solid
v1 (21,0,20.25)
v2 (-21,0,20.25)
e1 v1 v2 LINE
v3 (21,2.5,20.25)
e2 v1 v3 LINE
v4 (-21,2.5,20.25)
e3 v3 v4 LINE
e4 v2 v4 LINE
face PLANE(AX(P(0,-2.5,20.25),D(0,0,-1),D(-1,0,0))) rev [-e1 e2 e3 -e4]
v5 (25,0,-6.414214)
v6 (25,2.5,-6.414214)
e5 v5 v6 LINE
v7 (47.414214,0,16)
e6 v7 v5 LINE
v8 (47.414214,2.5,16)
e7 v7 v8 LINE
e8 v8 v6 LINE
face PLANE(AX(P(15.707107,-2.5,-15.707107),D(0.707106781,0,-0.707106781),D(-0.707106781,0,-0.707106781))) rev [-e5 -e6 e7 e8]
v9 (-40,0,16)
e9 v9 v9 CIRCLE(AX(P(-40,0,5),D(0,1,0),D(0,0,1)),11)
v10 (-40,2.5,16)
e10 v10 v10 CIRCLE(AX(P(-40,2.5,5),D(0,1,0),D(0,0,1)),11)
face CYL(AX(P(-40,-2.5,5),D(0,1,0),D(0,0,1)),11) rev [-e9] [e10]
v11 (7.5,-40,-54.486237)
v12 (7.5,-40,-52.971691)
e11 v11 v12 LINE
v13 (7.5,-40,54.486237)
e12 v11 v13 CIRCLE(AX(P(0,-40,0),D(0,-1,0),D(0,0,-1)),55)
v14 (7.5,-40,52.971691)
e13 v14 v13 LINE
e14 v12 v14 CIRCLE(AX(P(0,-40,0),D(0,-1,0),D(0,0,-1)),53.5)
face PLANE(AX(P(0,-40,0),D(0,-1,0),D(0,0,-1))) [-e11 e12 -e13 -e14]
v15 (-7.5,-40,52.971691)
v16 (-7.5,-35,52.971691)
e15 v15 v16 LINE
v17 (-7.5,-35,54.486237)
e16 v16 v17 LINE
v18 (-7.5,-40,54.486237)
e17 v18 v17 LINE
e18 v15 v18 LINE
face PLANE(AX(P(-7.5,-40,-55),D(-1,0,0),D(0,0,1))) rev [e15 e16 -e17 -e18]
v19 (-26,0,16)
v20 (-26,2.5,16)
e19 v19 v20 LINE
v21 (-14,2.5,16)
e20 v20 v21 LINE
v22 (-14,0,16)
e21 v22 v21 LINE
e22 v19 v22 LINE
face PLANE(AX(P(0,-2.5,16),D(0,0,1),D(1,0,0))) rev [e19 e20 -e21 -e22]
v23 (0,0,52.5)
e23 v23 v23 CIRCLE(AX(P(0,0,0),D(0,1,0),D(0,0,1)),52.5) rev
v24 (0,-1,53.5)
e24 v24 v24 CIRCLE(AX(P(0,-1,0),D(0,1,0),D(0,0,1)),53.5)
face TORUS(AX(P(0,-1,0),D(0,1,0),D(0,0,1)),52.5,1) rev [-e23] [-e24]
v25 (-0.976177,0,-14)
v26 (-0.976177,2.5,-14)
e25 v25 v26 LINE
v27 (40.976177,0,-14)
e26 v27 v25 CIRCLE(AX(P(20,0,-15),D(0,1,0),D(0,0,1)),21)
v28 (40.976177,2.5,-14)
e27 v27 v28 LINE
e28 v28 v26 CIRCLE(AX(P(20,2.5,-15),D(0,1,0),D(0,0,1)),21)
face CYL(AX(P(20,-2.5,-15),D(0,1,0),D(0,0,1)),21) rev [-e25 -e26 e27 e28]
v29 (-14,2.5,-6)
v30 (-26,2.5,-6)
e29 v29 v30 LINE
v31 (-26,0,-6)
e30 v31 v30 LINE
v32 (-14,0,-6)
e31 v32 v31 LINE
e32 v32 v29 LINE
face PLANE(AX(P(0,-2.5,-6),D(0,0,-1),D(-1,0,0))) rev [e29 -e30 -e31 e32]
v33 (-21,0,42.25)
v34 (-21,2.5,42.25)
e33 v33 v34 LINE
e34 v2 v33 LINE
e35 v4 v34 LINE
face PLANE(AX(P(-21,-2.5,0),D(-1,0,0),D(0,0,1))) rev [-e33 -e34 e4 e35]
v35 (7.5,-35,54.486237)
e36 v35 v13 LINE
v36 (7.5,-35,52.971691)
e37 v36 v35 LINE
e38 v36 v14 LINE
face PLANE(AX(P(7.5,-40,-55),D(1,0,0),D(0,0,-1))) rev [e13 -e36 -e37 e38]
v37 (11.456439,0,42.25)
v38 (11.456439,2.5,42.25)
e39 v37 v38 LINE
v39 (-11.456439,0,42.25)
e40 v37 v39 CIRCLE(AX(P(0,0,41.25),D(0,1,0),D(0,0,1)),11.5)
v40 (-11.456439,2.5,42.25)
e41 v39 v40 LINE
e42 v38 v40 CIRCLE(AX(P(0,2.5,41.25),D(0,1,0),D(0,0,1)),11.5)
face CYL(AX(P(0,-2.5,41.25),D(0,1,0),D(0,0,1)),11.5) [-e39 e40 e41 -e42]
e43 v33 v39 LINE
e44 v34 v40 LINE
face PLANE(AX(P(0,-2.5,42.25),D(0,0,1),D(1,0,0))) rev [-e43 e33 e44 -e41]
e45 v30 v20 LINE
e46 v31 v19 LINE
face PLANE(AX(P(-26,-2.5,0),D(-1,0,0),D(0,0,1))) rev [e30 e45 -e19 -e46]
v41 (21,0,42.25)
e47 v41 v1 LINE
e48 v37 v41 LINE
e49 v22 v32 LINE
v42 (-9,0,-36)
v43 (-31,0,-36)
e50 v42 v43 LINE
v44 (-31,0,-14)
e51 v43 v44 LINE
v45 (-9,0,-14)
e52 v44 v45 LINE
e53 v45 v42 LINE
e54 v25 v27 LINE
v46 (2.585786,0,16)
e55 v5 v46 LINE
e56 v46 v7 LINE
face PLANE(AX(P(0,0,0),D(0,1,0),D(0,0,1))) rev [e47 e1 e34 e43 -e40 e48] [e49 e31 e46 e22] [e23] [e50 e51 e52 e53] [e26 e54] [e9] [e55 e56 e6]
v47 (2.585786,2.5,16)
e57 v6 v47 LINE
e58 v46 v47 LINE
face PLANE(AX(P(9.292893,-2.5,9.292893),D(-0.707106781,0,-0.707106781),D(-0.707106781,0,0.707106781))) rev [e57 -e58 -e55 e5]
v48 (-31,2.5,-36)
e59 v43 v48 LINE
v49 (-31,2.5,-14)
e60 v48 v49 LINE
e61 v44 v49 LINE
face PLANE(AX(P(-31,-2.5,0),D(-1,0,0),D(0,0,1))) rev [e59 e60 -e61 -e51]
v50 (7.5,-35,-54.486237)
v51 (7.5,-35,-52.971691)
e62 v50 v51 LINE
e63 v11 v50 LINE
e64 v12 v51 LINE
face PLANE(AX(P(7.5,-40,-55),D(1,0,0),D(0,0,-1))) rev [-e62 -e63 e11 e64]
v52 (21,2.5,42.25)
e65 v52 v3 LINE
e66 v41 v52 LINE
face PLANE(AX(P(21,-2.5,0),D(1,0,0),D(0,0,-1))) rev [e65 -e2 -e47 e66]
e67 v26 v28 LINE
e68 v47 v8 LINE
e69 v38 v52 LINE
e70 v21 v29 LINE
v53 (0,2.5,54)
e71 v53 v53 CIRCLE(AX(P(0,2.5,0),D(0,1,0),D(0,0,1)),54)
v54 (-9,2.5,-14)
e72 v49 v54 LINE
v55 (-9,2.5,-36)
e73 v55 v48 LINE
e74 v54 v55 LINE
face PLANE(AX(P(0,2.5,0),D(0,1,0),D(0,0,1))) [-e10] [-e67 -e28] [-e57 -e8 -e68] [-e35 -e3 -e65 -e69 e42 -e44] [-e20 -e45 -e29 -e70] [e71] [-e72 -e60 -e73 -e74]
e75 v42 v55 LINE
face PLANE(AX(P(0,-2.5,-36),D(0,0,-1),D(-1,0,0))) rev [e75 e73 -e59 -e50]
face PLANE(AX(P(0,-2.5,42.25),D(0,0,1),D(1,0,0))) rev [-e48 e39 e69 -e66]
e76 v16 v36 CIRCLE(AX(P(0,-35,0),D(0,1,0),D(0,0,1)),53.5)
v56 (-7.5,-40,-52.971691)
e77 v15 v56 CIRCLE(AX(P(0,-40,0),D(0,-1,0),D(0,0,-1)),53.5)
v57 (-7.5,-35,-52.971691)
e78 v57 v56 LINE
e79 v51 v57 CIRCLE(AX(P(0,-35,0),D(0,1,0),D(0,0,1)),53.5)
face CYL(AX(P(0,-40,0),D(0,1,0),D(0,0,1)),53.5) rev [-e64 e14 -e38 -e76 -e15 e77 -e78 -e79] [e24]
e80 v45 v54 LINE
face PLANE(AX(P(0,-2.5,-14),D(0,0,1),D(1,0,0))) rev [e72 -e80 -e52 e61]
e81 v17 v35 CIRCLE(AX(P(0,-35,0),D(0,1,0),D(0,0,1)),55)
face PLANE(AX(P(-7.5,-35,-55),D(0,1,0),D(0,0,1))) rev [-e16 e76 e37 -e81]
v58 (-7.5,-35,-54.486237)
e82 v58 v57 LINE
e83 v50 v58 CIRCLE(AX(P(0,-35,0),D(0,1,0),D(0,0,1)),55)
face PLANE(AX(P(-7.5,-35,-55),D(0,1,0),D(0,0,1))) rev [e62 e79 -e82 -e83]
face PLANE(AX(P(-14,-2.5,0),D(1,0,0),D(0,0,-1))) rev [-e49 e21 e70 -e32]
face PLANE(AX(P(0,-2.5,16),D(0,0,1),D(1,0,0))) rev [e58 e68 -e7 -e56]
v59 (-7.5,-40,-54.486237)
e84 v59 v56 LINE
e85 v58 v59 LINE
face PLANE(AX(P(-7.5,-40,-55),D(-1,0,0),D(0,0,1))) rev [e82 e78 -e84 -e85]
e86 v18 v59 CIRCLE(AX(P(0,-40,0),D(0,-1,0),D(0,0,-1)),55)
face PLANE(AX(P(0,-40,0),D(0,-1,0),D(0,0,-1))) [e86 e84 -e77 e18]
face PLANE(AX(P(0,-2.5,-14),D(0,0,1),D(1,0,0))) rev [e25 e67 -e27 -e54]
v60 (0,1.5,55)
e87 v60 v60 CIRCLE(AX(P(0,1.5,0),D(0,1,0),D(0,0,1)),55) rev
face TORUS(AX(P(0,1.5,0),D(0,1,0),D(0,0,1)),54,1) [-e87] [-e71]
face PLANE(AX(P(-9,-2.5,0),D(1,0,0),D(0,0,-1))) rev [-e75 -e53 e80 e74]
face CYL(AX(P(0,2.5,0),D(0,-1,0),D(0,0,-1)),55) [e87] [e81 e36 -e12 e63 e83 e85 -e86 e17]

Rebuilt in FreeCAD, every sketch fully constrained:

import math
import FreeCAD as App
import Part
import Sketcher
from FreeCAD import Vector


def edges_at(feature, points):
    """Names of the edges that pass closest to the given points."""
    edges = feature.Shape.Edges
    near = lambda p: min(range(len(edges)), key=lambda i: edges[i].distToShape(Part.Vertex(*p))[0])
    return sorted({f"Edge{near(p) + 1}" for p in points})

doc = App.newDocument("Part")
body = doc.addObject("PartDesign::Body", "Body")

sketch1 = doc.addObject("Sketcher::SketchObject", "Sketch")
body.addObject(sketch1)
sketch1.AttachmentSupport = (doc.XZ_Plane, [""])
sketch1.MapMode = "FlatFace"
sketch1.addGeometry(Part.Circle(Vector(0, 0, 0), Vector(0, 0, 1), 55), False)
sketch1.addGeometry(Part.LineSegment(Vector(-10, -15, 0), Vector(-30, -15, 0)), False)
sketch1.addGeometry(Part.LineSegment(Vector(-30, -15, 0), Vector(-30, -35, 0)), False)
sketch1.addGeometry(Part.LineSegment(Vector(-30, -35, 0), Vector(-10, -35, 0)), False)
sketch1.addGeometry(Part.LineSegment(Vector(-10, -35, 0), Vector(-10, -15, 0)), False)
sketch1.addGeometry(Part.Circle(Vector(-40, 5, 0), Vector(0, 0, 1), 10), False)
sketch1.addGeometry(Part.LineSegment(Vector(-15, 15, 0), Vector(-25, 15, 0)), False)
sketch1.addGeometry(Part.LineSegment(Vector(-25, 15, 0), Vector(-25, -5, 0)), False)
sketch1.addGeometry(Part.LineSegment(Vector(-25, -5, 0), Vector(-15, -5, 0)), False)
sketch1.addGeometry(Part.LineSegment(Vector(-15, -5, 0), Vector(-15, 15, 0)), False)
sketch1.addGeometry(Part.LineSegment(Vector(40, -15, 0), Vector(0, -15, 0)), False)
sketch1.addGeometry(Part.ArcOfCircle(Part.Circle(Vector(20, -15, 0), Vector(0, 0, 1), 20), math.radians(180), math.radians(360)), False)
sketch1.addGeometry(Part.LineSegment(Vector(-12, 41, 0), Vector(-20, 41, 0)), False)
sketch1.addGeometry(Part.LineSegment(Vector(-20, 41, 0), Vector(-20, 21, 0)), False)
sketch1.addGeometry(Part.LineSegment(Vector(-20, 21, 0), Vector(20, 21, 0)), False)
sketch1.addGeometry(Part.LineSegment(Vector(20, 21, 0), Vector(20, 41, 0)), False)
sketch1.addGeometry(Part.LineSegment(Vector(20, 41, 0), Vector(12, 41, 0)), False)
sketch1.addGeometry(Part.ArcOfCircle(Part.Circle(Vector(0, 41, 0), Vector(0, 0, 1), 12), math.radians(180), math.radians(360)), False)
sketch1.addGeometry(Part.LineSegment(Vector(45, 15, 0), Vector(5, 15, 0)), False)
sketch1.addGeometry(Part.LineSegment(Vector(5, 15, 0), Vector(25, -5, 0)), False)
sketch1.addGeometry(Part.LineSegment(Vector(25, -5, 0), Vector(45, 15, 0)), False)
sketch1.addConstraint(Sketcher.Constraint("Coincident", 1, 2, 2, 1))
sketch1.addConstraint(Sketcher.Constraint("Coincident", 2, 2, 3, 1))
sketch1.addConstraint(Sketcher.Constraint("Coincident", 3, 2, 4, 1))
sketch1.addConstraint(Sketcher.Constraint("Coincident", 4, 2, 1, 1))
sketch1.addConstraint(Sketcher.Constraint("Coincident", 6, 2, 7, 1))
sketch1.addConstraint(Sketcher.Constraint("Coincident", 7, 2, 8, 1))
sketch1.addConstraint(Sketcher.Constraint("Coincident", 8, 2, 9, 1))
sketch1.addConstraint(Sketcher.Constraint("Coincident", 9, 2, 6, 1))
sketch1.addConstraint(Sketcher.Constraint("Coincident", 10, 1, 11, 2))
sketch1.addConstraint(Sketcher.Constraint("Coincident", 11, 1, 10, 2))
sketch1.addConstraint(Sketcher.Constraint("Coincident", 12, 2, 13, 1))
sketch1.addConstraint(Sketcher.Constraint("Coincident", 13, 2, 14, 1))
sketch1.addConstraint(Sketcher.Constraint("Coincident", 14, 2, 15, 1))
sketch1.addConstraint(Sketcher.Constraint("Coincident", 15, 2, 16, 1))
sketch1.addConstraint(Sketcher.Constraint("Coincident", 16, 2, 17, 2))
sketch1.addConstraint(Sketcher.Constraint("Coincident", 17, 1, 12, 1))
sketch1.addConstraint(Sketcher.Constraint("Coincident", 18, 2, 19, 1))
sketch1.addConstraint(Sketcher.Constraint("Coincident", 19, 2, 20, 1))
sketch1.addConstraint(Sketcher.Constraint("Coincident", 20, 2, 18, 1))
sketch1.addConstraint(Sketcher.Constraint("Horizontal", 1))
sketch1.addConstraint(Sketcher.Constraint("Vertical", 2))
sketch1.addConstraint(Sketcher.Constraint("Horizontal", 3))
sketch1.addConstraint(Sketcher.Constraint("Vertical", 4))
sketch1.addConstraint(Sketcher.Constraint("Horizontal", 6))
sketch1.addConstraint(Sketcher.Constraint("Vertical", 7))
sketch1.addConstraint(Sketcher.Constraint("Horizontal", 8))
sketch1.addConstraint(Sketcher.Constraint("Vertical", 9))
sketch1.addConstraint(Sketcher.Constraint("Horizontal", 10))
sketch1.addConstraint(Sketcher.Constraint("Horizontal", 12))
sketch1.addConstraint(Sketcher.Constraint("Vertical", 13))
sketch1.addConstraint(Sketcher.Constraint("Horizontal", 14))
sketch1.addConstraint(Sketcher.Constraint("Vertical", 15))
sketch1.addConstraint(Sketcher.Constraint("Horizontal", 16))
sketch1.addConstraint(Sketcher.Constraint("Horizontal", 18))
sketch1.addConstraint(Sketcher.Constraint("Coincident", 0, 3, -1, 1))
sketch1.addConstraint(Sketcher.Constraint("Symmetric", 12, 2, 15, 2, -2))
sketch1.addConstraint(Sketcher.Constraint("Symmetric", 7, 2, 19, 2, -2))
sketch1.addConstraint(Sketcher.Constraint("PointOnObject", 17, 3, -2))
sketch1.addConstraint(Sketcher.Constraint("PointOnObject", 11, 1, -2))
sketch1.addConstraint(Sketcher.Constraint("Perpendicular", 19, 20))
sketch1.addConstraint(Sketcher.Constraint("Horizontal", 11, 3, 1, 2))
sketch1.addConstraint(Sketcher.Constraint("Horizontal", 4, 2, 10, 1))
sketch1.addConstraint(Sketcher.Constraint("Horizontal", 17, 3, 12, 2))
sketch1.addConstraint(Sketcher.Constraint("Horizontal", 9, 2, 18, 2))
sketch1.addConstraint(Sketcher.Constraint("Vertical", 11, 3, 14, 2))
sketch1.addConstraint(Sketcher.Constraint("Equal", 14, 18))
sketch1.addConstraint(Sketcher.Constraint("Equal", 3, 2))
sketch1.addConstraint(Sketcher.Constraint("Equal", 4, 7))
sketch1.addConstraint(Sketcher.Constraint("Equal", 9, 13))
sketch1.addConstraint(Sketcher.Constraint("Equal", 19, 20))
sketch1.addConstraint(Sketcher.Constraint("Diameter", 0, 110.0))
sketch1.addConstraint(Sketcher.Constraint("Diameter", 5, 20.0))
sketch1.addConstraint(Sketcher.Constraint("Radius", 11, 20.0))
sketch1.addConstraint(Sketcher.Constraint("Radius", 17, 12.5))
sketch1.addConstraint(Sketcher.Constraint("DistanceX", 6, 2, 6, 1, 10.0))
sketch1.addConstraint(Sketcher.Constraint("DistanceX", 5, 3, -1, 1, 40.0))
sketch1.addConstraint(Sketcher.Constraint("DistanceY", -1, 1, 5, 3, 5.0))
sketch1.addConstraint(Sketcher.Constraint("DistanceY", 11, 3, -1, 1, 15.0))
sketch1.addConstraint(Sketcher.Constraint("DistanceX", 1, 2, -1, 1, 30.0))
sketch1.addConstraint(Sketcher.Constraint("DistanceX", 6, 2, -1, 1, 25.0))
sketch1.addConstraint(Sketcher.Constraint("DistanceY", -1, 1, 6, 2, 15.0))
sketch1.addConstraint(Sketcher.Constraint("DistanceY", -1, 1, 17, 3, 41.25))
pad1 = doc.addObject("PartDesign::Pad", "Pad")
body.addObject(pad1)
pad1.Profile = sketch1
pad1.Length = 2.5
pad1.Reversed = True

sketch2 = doc.addObject("Sketcher::SketchObject", "Sketch001")
body.addObject(sketch2)
sketch2.AttachmentSupport = (doc.XZ_Plane, [""])
sketch2.MapMode = "FlatFace"
sketch2.AttachmentOffset = App.Placement(Vector(0, 0, 40), App.Rotation())
sketch2.addGeometry(Part.Circle(Vector(0, 0, 0), Vector(0, 0, 1), 55), False)
sketch2.addGeometry(Part.Circle(Vector(0, 0, 0), Vector(0, 0, 1), 54), False)
sketch2.addConstraint(Sketcher.Constraint("Coincident", 0, 3, -1, 1))
sketch2.addConstraint(Sketcher.Constraint("Coincident", 1, 3, -1, 1))
sketch2.addConstraint(Sketcher.Constraint("Diameter", 0, 110.0))
sketch2.addConstraint(Sketcher.Constraint("Diameter", 1, 107.0))
pad2 = doc.addObject("PartDesign::Pad", "Pad001")
body.addObject(pad2)
pad2.Profile = sketch2
pad2.Length = 40
pad2.Reversed = True

sketch3 = doc.addObject("Sketcher::SketchObject", "Sketch002")
body.addObject(sketch3)
sketch3.AttachmentSupport = (doc.XZ_Plane, [""])
sketch3.MapMode = "FlatFace"
sketch3.AttachmentOffset = App.Placement(Vector(0, 0, 2.5), App.Rotation())
sketch3.addGeometry(Part.LineSegment(Vector(-31, -36, 0), Vector(-31, -14, 0)), False)
sketch3.addGeometry(Part.LineSegment(Vector(-31, -14, 0), Vector(-9, -14, 0)), False)
sketch3.addGeometry(Part.LineSegment(Vector(-9, -14, 0), Vector(-9, -36, 0)), False)
sketch3.addGeometry(Part.LineSegment(Vector(-9, -36, 0), Vector(-31, -36, 0)), False)
sketch3.addGeometry(Part.LineSegment(Vector(-10, -15, 0), Vector(-30, -15, 0)), False)
sketch3.addGeometry(Part.LineSegment(Vector(-30, -15, 0), Vector(-30, -35, 0)), False)
sketch3.addGeometry(Part.LineSegment(Vector(-30, -35, 0), Vector(-10, -35, 0)), False)
sketch3.addGeometry(Part.LineSegment(Vector(-10, -35, 0), Vector(-10, -15, 0)), False)
sketch3.addGeometry(Part.ArcOfCircle(Part.Circle(Vector(20, -15, 0), Vector(0, 0, 1), 21), math.radians(177), math.radians(363)), False)
sketch3.addGeometry(Part.LineSegment(Vector(-1, -14, 0), Vector(41, -14, 0)), False)
sketch3.addGeometry(Part.ArcOfCircle(Part.Circle(Vector(20, -15, 0), Vector(0, 0, 1), 20), math.radians(180), math.radians(360)), False)
sketch3.addGeometry(Part.LineSegment(Vector(40, -15, 0), Vector(0, -15, 0)), False)
sketch3.addGeometry(Part.LineSegment(Vector(-26, -6, 0), Vector(-26, 16, 0)), False)
sketch3.addGeometry(Part.LineSegment(Vector(-26, 16, 0), Vector(-14, 16, 0)), False)
sketch3.addGeometry(Part.LineSegment(Vector(-14, 16, 0), Vector(-14, -6, 0)), False)
sketch3.addGeometry(Part.LineSegment(Vector(-14, -6, 0), Vector(-26, -6, 0)), False)
sketch3.addGeometry(Part.LineSegment(Vector(-15, 15, 0), Vector(-25, 15, 0)), False)
sketch3.addGeometry(Part.LineSegment(Vector(-25, 15, 0), Vector(-25, -5, 0)), False)
sketch3.addGeometry(Part.LineSegment(Vector(-25, -5, 0), Vector(-15, -5, 0)), False)
sketch3.addGeometry(Part.LineSegment(Vector(-15, -5, 0), Vector(-15, 15, 0)), False)
sketch3.addGeometry(Part.LineSegment(Vector(47, 16, 0), Vector(25, -6, 0)), False)
sketch3.addGeometry(Part.LineSegment(Vector(25, -6, 0), Vector(3, 16, 0)), False)
sketch3.addGeometry(Part.LineSegment(Vector(3, 16, 0), Vector(47, 16, 0)), False)
sketch3.addGeometry(Part.LineSegment(Vector(45, 15, 0), Vector(5, 15, 0)), False)
sketch3.addGeometry(Part.LineSegment(Vector(5, 15, 0), Vector(25, -5, 0)), False)
sketch3.addGeometry(Part.LineSegment(Vector(25, -5, 0), Vector(45, 15, 0)), False)
sketch3.addGeometry(Part.LineSegment(Vector(21, 42, 0), Vector(21, 20, 0)), False)
sketch3.addGeometry(Part.LineSegment(Vector(21, 20, 0), Vector(-21, 20, 0)), False)
sketch3.addGeometry(Part.LineSegment(Vector(-21, 20, 0), Vector(-21, 42, 0)), False)
sketch3.addGeometry(Part.LineSegment(Vector(-21, 42, 0), Vector(-11, 42, 0)), False)
sketch3.addGeometry(Part.ArcOfCircle(Part.Circle(Vector(0, 41, 0), Vector(0, 0, 1), 12), math.radians(175), math.radians(365)), False)
sketch3.addGeometry(Part.LineSegment(Vector(11, 42, 0), Vector(21, 42, 0)), False)
sketch3.addGeometry(Part.LineSegment(Vector(-20, 41, 0), Vector(-20, 21, 0)), False)
sketch3.addGeometry(Part.LineSegment(Vector(-20, 21, 0), Vector(20, 21, 0)), False)
sketch3.addGeometry(Part.LineSegment(Vector(20, 21, 0), Vector(20, 41, 0)), False)
sketch3.addGeometry(Part.LineSegment(Vector(20, 41, 0), Vector(12, 41, 0)), False)
sketch3.addGeometry(Part.ArcOfCircle(Part.Circle(Vector(0, 41, 0), Vector(0, 0, 1), 12), math.radians(180), math.radians(360)), False)
sketch3.addGeometry(Part.LineSegment(Vector(-12, 41, 0), Vector(-20, 41, 0)), False)
sketch3.addGeometry(Part.Circle(Vector(-40, 5, 0), Vector(0, 0, 1), 11), False)
sketch3.addGeometry(Part.Circle(Vector(-40, 5, 0), Vector(0, 0, 1), 10), False)
sketch3.addConstraint(Sketcher.Constraint("Coincident", 0, 2, 1, 1))
sketch3.addConstraint(Sketcher.Constraint("Coincident", 1, 2, 2, 1))
sketch3.addConstraint(Sketcher.Constraint("Coincident", 2, 2, 3, 1))
sketch3.addConstraint(Sketcher.Constraint("Coincident", 3, 2, 0, 1))
sketch3.addConstraint(Sketcher.Constraint("Coincident", 4, 2, 5, 1))
sketch3.addConstraint(Sketcher.Constraint("Coincident", 5, 2, 6, 1))
sketch3.addConstraint(Sketcher.Constraint("Coincident", 6, 2, 7, 1))
sketch3.addConstraint(Sketcher.Constraint("Coincident", 7, 2, 4, 1))
sketch3.addConstraint(Sketcher.Constraint("Coincident", 8, 1, 9, 1))
sketch3.addConstraint(Sketcher.Constraint("Coincident", 9, 2, 8, 2))
sketch3.addConstraint(Sketcher.Constraint("Coincident", 10, 1, 11, 2))
sketch3.addConstraint(Sketcher.Constraint("Coincident", 11, 1, 10, 2))
sketch3.addConstraint(Sketcher.Constraint("Coincident", 12, 2, 13, 1))
sketch3.addConstraint(Sketcher.Constraint("Coincident", 13, 2, 14, 1))
sketch3.addConstraint(Sketcher.Constraint("Coincident", 14, 2, 15, 1))
sketch3.addConstraint(Sketcher.Constraint("Coincident", 15, 2, 12, 1))
sketch3.addConstraint(Sketcher.Constraint("Coincident", 16, 2, 17, 1))
sketch3.addConstraint(Sketcher.Constraint("Coincident", 17, 2, 18, 1))
sketch3.addConstraint(Sketcher.Constraint("Coincident", 18, 2, 19, 1))
sketch3.addConstraint(Sketcher.Constraint("Coincident", 19, 2, 16, 1))
sketch3.addConstraint(Sketcher.Constraint("Coincident", 20, 2, 21, 1))
sketch3.addConstraint(Sketcher.Constraint("Coincident", 21, 2, 22, 1))
sketch3.addConstraint(Sketcher.Constraint("Coincident", 22, 2, 20, 1))
sketch3.addConstraint(Sketcher.Constraint("Coincident", 23, 2, 24, 1))
sketch3.addConstraint(Sketcher.Constraint("Coincident", 24, 2, 25, 1))
sketch3.addConstraint(Sketcher.Constraint("Coincident", 25, 2, 23, 1))
sketch3.addConstraint(Sketcher.Constraint("Coincident", 26, 2, 27, 1))
sketch3.addConstraint(Sketcher.Constraint("Coincident", 27, 2, 28, 1))
sketch3.addConstraint(Sketcher.Constraint("Coincident", 28, 2, 29, 1))
sketch3.addConstraint(Sketcher.Constraint("Coincident", 29, 2, 30, 1))
sketch3.addConstraint(Sketcher.Constraint("Coincident", 30, 2, 31, 1))
sketch3.addConstraint(Sketcher.Constraint("Coincident", 31, 2, 26, 1))
sketch3.addConstraint(Sketcher.Constraint("Coincident", 32, 2, 33, 1))
sketch3.addConstraint(Sketcher.Constraint("Coincident", 33, 2, 34, 1))
sketch3.addConstraint(Sketcher.Constraint("Coincident", 34, 2, 35, 1))
sketch3.addConstraint(Sketcher.Constraint("Coincident", 35, 2, 36, 2))
sketch3.addConstraint(Sketcher.Constraint("Coincident", 36, 1, 37, 1))
sketch3.addConstraint(Sketcher.Constraint("Coincident", 37, 2, 32, 1))
sketch3.addConstraint(Sketcher.Constraint("Vertical", 0))
sketch3.addConstraint(Sketcher.Constraint("Horizontal", 1))
sketch3.addConstraint(Sketcher.Constraint("Vertical", 2))
sketch3.addConstraint(Sketcher.Constraint("Horizontal", 3))
sketch3.addConstraint(Sketcher.Constraint("Horizontal", 4))
sketch3.addConstraint(Sketcher.Constraint("Vertical", 5))
sketch3.addConstraint(Sketcher.Constraint("Horizontal", 6))
sketch3.addConstraint(Sketcher.Constraint("Vertical", 7))
sketch3.addConstraint(Sketcher.Constraint("Horizontal", 9))
sketch3.addConstraint(Sketcher.Constraint("Horizontal", 11))
sketch3.addConstraint(Sketcher.Constraint("Vertical", 12))
sketch3.addConstraint(Sketcher.Constraint("Horizontal", 13))
sketch3.addConstraint(Sketcher.Constraint("Vertical", 14))
sketch3.addConstraint(Sketcher.Constraint("Horizontal", 15))
sketch3.addConstraint(Sketcher.Constraint("Horizontal", 16))
sketch3.addConstraint(Sketcher.Constraint("Vertical", 17))
sketch3.addConstraint(Sketcher.Constraint("Horizontal", 18))
sketch3.addConstraint(Sketcher.Constraint("Vertical", 19))
sketch3.addConstraint(Sketcher.Constraint("Horizontal", 22))
sketch3.addConstraint(Sketcher.Constraint("Horizontal", 23))
sketch3.addConstraint(Sketcher.Constraint("Vertical", 26))
sketch3.addConstraint(Sketcher.Constraint("Horizontal", 27))
sketch3.addConstraint(Sketcher.Constraint("Vertical", 28))
sketch3.addConstraint(Sketcher.Constraint("Horizontal", 29))
sketch3.addConstraint(Sketcher.Constraint("Horizontal", 31))
sketch3.addConstraint(Sketcher.Constraint("Vertical", 32))
sketch3.addConstraint(Sketcher.Constraint("Horizontal", 33))
sketch3.addConstraint(Sketcher.Constraint("Vertical", 34))
sketch3.addConstraint(Sketcher.Constraint("Horizontal", 35))
sketch3.addConstraint(Sketcher.Constraint("Horizontal", 37))
sketch3.addConstraint(Sketcher.Constraint("Coincident", 10, 3, 8, 3))
sketch3.addConstraint(Sketcher.Constraint("Coincident", 36, 3, 30, 3))
sketch3.addConstraint(Sketcher.Constraint("Coincident", 39, 3, 38, 3))
sketch3.addConstraint(Sketcher.Constraint("Symmetric", 17, 2, 24, 2, -2))
sketch3.addConstraint(Sketcher.Constraint("Symmetric", 29, 2, 30, 2, -2))
sketch3.addConstraint(Sketcher.Constraint("Symmetric", 34, 2, 37, 2, -2))
sketch3.addConstraint(Sketcher.Constraint("PointOnObject", 10, 1, -2))
sketch3.addConstraint(Sketcher.Constraint("Perpendicular", 20, 21))
sketch3.addConstraint(Sketcher.Constraint("Parallel", 21, 24))
sketch3.addConstraint(Sketcher.Constraint("Perpendicular", 24, 25))
sketch3.addConstraint(Sketcher.Constraint("Horizontal", 10, 3, 4, 2))
sketch3.addConstraint(Sketcher.Constraint("Horizontal", 1, 2, 8, 1))
sketch3.addConstraint(Sketcher.Constraint("Horizontal", 7, 2, 10, 1))
sketch3.addConstraint(Sketcher.Constraint("Horizontal", 13, 2, 21, 2))
sketch3.addConstraint(Sketcher.Constraint("Horizontal", 19, 2, 23, 2))
sketch3.addConstraint(Sketcher.Constraint("Horizontal", 36, 3, 34, 2))
sketch3.addConstraint(Sketcher.Constraint("Vertical", 20, 2, 24, 2))
sketch3.addConstraint(Sketcher.Constraint("Vertical", 10, 3, 33, 2))
sketch3.addConstraint(Sketcher.Constraint("Equal", 11, 23))
sketch3.addConstraint(Sketcher.Constraint("Equal", 29, 31))
sketch3.addConstraint(Sketcher.Constraint("Equal", 3, 0))
sketch3.addConstraint(Sketcher.Constraint("Equal", 6, 5))
sketch3.addConstraint(Sketcher.Constraint("Equal", 2, 12))
sketch3.addConstraint(Sketcher.Constraint("Equal", 7, 17))
sketch3.addConstraint(Sketcher.Constraint("Equal", 14, 26))
sketch3.addConstraint(Sketcher.Constraint("Equal", 19, 32))
sketch3.addConstraint(Sketcher.Constraint("Equal", 20, 21))
sketch3.addConstraint(Sketcher.Constraint("Diameter", 38, 22.0))
sketch3.addConstraint(Sketcher.Constraint("Diameter", 39, 20.0))
sketch3.addConstraint(Sketcher.Constraint("Radius", 8, 21.0))
sketch3.addConstraint(Sketcher.Constraint("Radius", 10, 20.0))
sketch3.addConstraint(Sketcher.Constraint("Radius", 30, 11.5))
sketch3.addConstraint(Sketcher.Constraint("Radius", 36, 12.5))
sketch3.addConstraint(Sketcher.Constraint("DistanceX", 1, 1, 1, 2, 22.0))
sketch3.addConstraint(Sketcher.Constraint("DistanceX", 13, 1, 13, 2, 12.0))
sketch3.addConstraint(Sketcher.Constraint("DistanceX", 16, 2, 16, 1, 10.0))
sketch3.addConstraint(Sketcher.Constraint("DistanceX", 27, 2, 27, 1, 42.0))
sketch3.addConstraint(Sketcher.Constraint("DistanceY", 8, 3, -1, 1, 15.0))
sketch3.addConstraint(Sketcher.Constraint("DistanceX", 38, 3, -1, 1, 40.0))
sketch3.addConstraint(Sketcher.Constraint("DistanceY", -1, 1, 38, 3, 5.0))
sketch3.addConstraint(Sketcher.Constraint("DistanceX", 0, 2, -1, 1, 31.0))
sketch3.addConstraint(Sketcher.Constraint("DistanceY", 0, 2, -1, 1, 14.0))
sketch3.addConstraint(Sketcher.Constraint("DistanceX", 4, 2, -1, 1, 30.0))
sketch3.addConstraint(Sketcher.Constraint("DistanceX", 12, 2, -1, 1, 26.0))
sketch3.addConstraint(Sketcher.Constraint("DistanceY", -1, 1, 12, 2, 16.0))
sketch3.addConstraint(Sketcher.Constraint("DistanceX", 16, 2, -1, 1, 25.0))
sketch3.addConstraint(Sketcher.Constraint("DistanceY", -1, 1, 16, 2, 15.0))
sketch3.addConstraint(Sketcher.Constraint("DistanceY", 30, 3, 28, 2, 1.0))
sketch3.addConstraint(Sketcher.Constraint("DistanceY", -1, 1, 30, 3, 41.25))
sketch3.addConstraint(Sketcher.Constraint("DistanceX", 22, 1, 22, 2, 44.828427))
pocket1 = doc.addObject("PartDesign::Pocket", "Pocket")
body.addObject(pocket1)
pocket1.Profile = sketch3
pocket1.Length = 5
doc.recompute()

fillet = doc.addObject("PartDesign::Fillet", "Fillet")
body.addObject(fillet)
fillet.Base = (pocket1, edges_at(pocket1, [(0, 2.5, -55)]))
fillet.Radius = 1
doc.recompute()

fillet2 = doc.addObject("PartDesign::Fillet", "Fillet001")
body.addObject(fillet2)
fillet2.Base = (fillet, edges_at(fillet, [(0, 0, 53.5)]))
fillet2.Radius = 1

sketch4 = doc.addObject("Sketcher::SketchObject", "Sketch003")
body.addObject(sketch4)
sketch4.AttachmentSupport = (doc.XY_Plane, [""])
sketch4.MapMode = "FlatFace"
sketch4.addGeometry(Part.LineSegment(Vector(-8, -35, 0), Vector(-8, -40, 0)), False)
sketch4.addGeometry(Part.LineSegment(Vector(-8, -40, 0), Vector(8, -40, 0)), False)
sketch4.addGeometry(Part.LineSegment(Vector(8, -40, 0), Vector(8, -35, 0)), False)
sketch4.addGeometry(Part.LineSegment(Vector(8, -35, 0), Vector(-8, -35, 0)), False)
sketch4.addConstraint(Sketcher.Constraint("Coincident", 0, 2, 1, 1))
sketch4.addConstraint(Sketcher.Constraint("Coincident", 1, 2, 2, 1))
sketch4.addConstraint(Sketcher.Constraint("Coincident", 2, 2, 3, 1))
sketch4.addConstraint(Sketcher.Constraint("Coincident", 3, 2, 0, 1))
sketch4.addConstraint(Sketcher.Constraint("Vertical", 0))
sketch4.addConstraint(Sketcher.Constraint("Horizontal", 1))
sketch4.addConstraint(Sketcher.Constraint("Vertical", 2))
sketch4.addConstraint(Sketcher.Constraint("Horizontal", 3))
sketch4.addConstraint(Sketcher.Constraint("DistanceX", 1, 1, 1, 2, 15.0))
sketch4.addConstraint(Sketcher.Constraint("DistanceY", 0, 2, 0, 1, 5.0))
sketch4.addConstraint(Sketcher.Constraint("DistanceY", 0, 2, -1, 1, 40.0))
sketch4.addConstraint(Sketcher.Constraint("DistanceX", 0, 2, -1, 1, 7.5))
pocket2 = doc.addObject("PartDesign::Pocket", "Pocket001")
body.addObject(pocket2)
pocket2.Profile = sketch4
pocket2.Type = "ThroughAll"
pocket2.Midplane = True

doc.recompute()
